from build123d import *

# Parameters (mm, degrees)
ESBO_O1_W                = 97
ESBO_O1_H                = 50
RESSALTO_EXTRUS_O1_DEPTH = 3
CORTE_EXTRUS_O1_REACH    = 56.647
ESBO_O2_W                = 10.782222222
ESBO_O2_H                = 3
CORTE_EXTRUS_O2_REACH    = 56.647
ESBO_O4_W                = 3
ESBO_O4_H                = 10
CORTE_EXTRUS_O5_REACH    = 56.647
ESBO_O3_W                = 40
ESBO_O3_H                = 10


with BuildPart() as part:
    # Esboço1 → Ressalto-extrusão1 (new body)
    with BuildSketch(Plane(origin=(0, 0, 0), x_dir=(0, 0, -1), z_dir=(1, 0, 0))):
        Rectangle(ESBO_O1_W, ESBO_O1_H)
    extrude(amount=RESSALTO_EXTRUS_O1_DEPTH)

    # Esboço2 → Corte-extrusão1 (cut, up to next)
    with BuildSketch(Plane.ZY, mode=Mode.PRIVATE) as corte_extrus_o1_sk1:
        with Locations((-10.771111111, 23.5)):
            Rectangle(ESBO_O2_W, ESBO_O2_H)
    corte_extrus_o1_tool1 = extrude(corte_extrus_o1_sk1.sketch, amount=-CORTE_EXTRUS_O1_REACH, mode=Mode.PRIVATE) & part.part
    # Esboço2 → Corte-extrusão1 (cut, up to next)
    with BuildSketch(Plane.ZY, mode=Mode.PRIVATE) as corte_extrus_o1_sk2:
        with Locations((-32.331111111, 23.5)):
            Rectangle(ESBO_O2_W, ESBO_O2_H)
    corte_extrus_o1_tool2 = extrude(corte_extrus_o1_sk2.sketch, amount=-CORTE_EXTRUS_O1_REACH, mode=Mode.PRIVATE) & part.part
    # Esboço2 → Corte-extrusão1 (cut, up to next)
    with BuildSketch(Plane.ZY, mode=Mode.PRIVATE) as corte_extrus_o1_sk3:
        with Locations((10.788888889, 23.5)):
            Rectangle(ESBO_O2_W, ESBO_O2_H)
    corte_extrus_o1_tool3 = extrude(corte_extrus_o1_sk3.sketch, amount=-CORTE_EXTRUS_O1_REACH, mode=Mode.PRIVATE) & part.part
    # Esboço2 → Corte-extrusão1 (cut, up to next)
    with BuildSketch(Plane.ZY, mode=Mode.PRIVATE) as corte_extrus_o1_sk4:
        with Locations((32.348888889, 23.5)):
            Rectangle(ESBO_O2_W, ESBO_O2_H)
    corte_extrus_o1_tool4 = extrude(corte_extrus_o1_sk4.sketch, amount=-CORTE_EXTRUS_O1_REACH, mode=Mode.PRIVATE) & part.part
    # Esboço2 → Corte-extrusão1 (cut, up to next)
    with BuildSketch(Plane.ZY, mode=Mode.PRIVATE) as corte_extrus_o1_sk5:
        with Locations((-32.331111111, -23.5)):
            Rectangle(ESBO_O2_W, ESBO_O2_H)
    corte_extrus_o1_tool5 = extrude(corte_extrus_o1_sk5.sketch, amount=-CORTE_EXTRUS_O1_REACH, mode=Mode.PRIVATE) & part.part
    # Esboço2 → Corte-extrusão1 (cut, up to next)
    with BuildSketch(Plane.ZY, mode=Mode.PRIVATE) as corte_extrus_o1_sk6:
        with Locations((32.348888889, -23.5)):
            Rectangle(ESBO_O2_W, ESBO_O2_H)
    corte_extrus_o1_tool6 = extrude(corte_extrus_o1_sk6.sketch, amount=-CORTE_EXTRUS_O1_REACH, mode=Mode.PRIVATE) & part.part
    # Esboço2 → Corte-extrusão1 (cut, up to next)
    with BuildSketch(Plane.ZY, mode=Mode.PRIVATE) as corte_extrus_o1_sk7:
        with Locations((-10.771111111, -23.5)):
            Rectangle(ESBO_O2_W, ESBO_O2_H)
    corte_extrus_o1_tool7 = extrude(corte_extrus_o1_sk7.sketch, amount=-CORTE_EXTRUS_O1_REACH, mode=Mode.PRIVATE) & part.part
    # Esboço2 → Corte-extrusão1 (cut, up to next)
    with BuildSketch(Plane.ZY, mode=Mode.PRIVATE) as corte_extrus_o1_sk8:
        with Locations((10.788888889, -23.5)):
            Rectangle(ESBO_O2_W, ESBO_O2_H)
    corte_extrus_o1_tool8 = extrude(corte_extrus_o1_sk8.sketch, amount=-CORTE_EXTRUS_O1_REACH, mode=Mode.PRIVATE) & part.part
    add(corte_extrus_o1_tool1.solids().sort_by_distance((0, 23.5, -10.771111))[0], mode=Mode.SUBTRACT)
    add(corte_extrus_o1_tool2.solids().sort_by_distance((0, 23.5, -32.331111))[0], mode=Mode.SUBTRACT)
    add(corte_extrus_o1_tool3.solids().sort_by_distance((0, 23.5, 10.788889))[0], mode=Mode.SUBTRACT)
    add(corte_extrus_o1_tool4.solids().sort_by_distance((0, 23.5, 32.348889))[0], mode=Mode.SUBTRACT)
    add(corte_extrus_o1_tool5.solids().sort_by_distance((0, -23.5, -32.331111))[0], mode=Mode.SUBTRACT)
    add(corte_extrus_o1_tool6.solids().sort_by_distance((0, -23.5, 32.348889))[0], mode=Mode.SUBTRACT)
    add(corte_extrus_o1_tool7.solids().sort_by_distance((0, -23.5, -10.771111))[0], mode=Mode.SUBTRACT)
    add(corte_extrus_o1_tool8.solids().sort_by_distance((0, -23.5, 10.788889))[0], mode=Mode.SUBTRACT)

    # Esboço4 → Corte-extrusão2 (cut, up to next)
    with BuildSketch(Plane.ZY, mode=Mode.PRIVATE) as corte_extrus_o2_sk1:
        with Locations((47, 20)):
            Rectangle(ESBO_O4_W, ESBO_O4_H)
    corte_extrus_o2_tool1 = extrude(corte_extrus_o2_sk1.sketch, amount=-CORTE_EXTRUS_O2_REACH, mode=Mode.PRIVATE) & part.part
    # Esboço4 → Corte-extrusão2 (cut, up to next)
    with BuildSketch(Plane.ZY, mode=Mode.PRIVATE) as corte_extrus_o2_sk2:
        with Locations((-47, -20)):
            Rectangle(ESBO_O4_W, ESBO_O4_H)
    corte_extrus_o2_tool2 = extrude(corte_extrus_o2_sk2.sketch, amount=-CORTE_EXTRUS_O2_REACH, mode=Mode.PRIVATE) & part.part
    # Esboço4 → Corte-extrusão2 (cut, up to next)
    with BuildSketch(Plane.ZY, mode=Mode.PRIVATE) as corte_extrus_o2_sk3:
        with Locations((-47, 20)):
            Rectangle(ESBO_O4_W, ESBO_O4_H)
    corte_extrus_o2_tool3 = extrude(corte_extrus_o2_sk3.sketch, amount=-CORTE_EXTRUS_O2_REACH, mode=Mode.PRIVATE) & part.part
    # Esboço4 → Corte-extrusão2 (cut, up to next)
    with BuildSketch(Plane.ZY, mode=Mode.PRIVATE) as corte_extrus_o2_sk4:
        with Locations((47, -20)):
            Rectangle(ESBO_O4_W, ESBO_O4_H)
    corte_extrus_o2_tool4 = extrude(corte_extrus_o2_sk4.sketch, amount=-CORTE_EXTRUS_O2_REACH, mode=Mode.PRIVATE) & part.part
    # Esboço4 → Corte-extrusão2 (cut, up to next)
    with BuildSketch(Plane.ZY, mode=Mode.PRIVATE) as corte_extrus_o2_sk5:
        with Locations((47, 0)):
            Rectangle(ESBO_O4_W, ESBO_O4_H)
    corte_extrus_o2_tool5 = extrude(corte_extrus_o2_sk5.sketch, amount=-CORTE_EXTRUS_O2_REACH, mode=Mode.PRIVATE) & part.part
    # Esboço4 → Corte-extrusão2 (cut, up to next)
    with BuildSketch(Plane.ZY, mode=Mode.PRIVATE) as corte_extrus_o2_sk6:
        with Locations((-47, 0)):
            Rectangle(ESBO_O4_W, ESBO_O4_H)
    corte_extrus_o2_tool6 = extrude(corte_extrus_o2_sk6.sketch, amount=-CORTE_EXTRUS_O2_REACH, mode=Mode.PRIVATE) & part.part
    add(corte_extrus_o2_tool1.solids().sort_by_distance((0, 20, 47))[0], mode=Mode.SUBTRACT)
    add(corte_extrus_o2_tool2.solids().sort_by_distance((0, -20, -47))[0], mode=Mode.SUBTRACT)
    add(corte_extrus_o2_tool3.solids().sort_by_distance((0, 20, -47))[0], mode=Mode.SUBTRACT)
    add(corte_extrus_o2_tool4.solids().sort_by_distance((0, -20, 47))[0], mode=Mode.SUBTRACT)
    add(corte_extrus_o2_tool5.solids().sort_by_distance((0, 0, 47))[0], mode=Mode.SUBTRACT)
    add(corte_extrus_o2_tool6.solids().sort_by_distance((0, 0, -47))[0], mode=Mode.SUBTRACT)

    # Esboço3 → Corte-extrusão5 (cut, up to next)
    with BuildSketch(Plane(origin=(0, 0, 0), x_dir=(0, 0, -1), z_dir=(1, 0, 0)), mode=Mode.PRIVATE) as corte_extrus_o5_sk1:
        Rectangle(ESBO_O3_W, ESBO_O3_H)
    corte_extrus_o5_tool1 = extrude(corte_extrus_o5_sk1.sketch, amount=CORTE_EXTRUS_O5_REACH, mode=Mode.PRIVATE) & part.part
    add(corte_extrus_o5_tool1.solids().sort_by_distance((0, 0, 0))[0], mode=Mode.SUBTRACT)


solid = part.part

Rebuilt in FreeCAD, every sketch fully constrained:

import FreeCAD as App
import Part
import Sketcher
from FreeCAD import Vector


def add_polygon(sketch, points):
    """Adds a closed chain of lines whose ends are joined by coincident constraints."""
    first, n = sketch.GeometryCount, len(points)
    for a, b in zip(points, points[1:] + points[:1]):
        sketch.addGeometry(Part.LineSegment(App.Vector(*a, 0), App.Vector(*b, 0)), False)
    for i in range(n):
        sketch.addConstraint(Sketcher.Constraint("Coincident", first + i, 2, first + (i + 1) % n, 1))

doc = App.newDocument("Part")
body = doc.addObject("PartDesign::Body", "Body")

# Sketch on YZ plane
sketch1 = doc.addObject("Sketcher::SketchObject", "Sketch")
body.addObject(sketch1)
sketch1.AttachmentSupport = (doc.YZ_Plane, [""])
sketch1.MapMode = "FlatFace"
add_polygon(sketch1, [(25, 48.5), (-25, 48.5), (-25, -48.5), (25, -48.5)])  # lines 0-3
sketch1.addConstraint(Sketcher.Constraint("Horizontal", 0))
sketch1.addConstraint(Sketcher.Constraint("Vertical", 1))
sketch1.addConstraint(Sketcher.Constraint("Horizontal", 2))
sketch1.addConstraint(Sketcher.Constraint("Vertical", 3))
sketch1.addConstraint(Sketcher.Constraint("Symmetric", 0, 2, 2, 2, -1, 1))
sketch1.addConstraint(Sketcher.Constraint("DistanceX", 0, 2, 0, 1, 50.0))
sketch1.addConstraint(Sketcher.Constraint("DistanceY", 1, 2, 1, 1, 97.0))
pad1 = doc.addObject("PartDesign::Pad", "Pad")
body.addObject(pad1)
pad1.Profile = sketch1
pad1.Length = 3

# Sketch on YZ plane
sketch2 = doc.addObject("Sketcher::SketchObject", "Sketch001")
body.addObject(sketch2)
sketch2.AttachmentSupport = (doc.YZ_Plane, [""])
sketch2.MapMode = "FlatFace"
add_polygon(sketch2, [(25, -16.162222), (22, -16.162222), (22, -5.38), (25, -5.38)])  # lines 0-3
sketch2.addConstraint(Sketcher.Constraint("Horizontal", 0))
sketch2.addConstraint(Sketcher.Constraint("Vertical", 1))
sketch2.addConstraint(Sketcher.Constraint("Horizontal", 2))
sketch2.addConstraint(Sketcher.Constraint("Vertical", 3))
sketch2.addConstraint(Sketcher.Constraint("DistanceX", 0, 2, 0, 1, 3.0))
sketch2.addConstraint(Sketcher.Constraint("DistanceX", -1, 1, 0, 2, 22.0))
sketch2.addConstraint(Sketcher.Constraint("DistanceY", 1, 2, -1, 1, 5.38))
sketch2.addConstraint(Sketcher.Constraint("DistanceY", 1, 1, 1, 2, 10.782222))
pocket1 = doc.addObject("PartDesign::Pocket", "Pocket")
body.addObject(pocket1)
pocket1.Profile = sketch2
pocket1.Type = "UpToFirst"
pocket1.Reversed = True

# Sketch on YZ plane
sketch3 = doc.addObject("Sketcher::SketchObject", "Sketch002")
body.addObject(sketch3)
sketch3.AttachmentSupport = (doc.YZ_Plane, [""])
sketch3.MapMode = "FlatFace"
add_polygon(sketch3, [(25, -37.722222), (22, -37.722222), (22, -26.94), (25, -26.94)])  # lines 0-3
sketch3.addConstraint(Sketcher.Constraint("Horizontal", 0))
sketch3.addConstraint(Sketcher.Constraint("Vertical", 1))
sketch3.addConstraint(Sketcher.Constraint("Horizontal", 2))
sketch3.addConstraint(Sketcher.Constraint("Vertical", 3))
sketch3.addConstraint(Sketcher.Constraint("DistanceX", 0, 2, 0, 1, 3.0))
sketch3.addConstraint(Sketcher.Constraint("DistanceX", -1, 1, 0, 2, 22.0))
sketch3.addConstraint(Sketcher.Constraint("DistanceY", 1, 2, -1, 1, 26.94))
sketch3.addConstraint(Sketcher.Constraint("DistanceY", 1, 1, 1, 2, 10.782222))
pocket2 = doc.addObject("PartDesign::Pocket", "Pocket001")
body.addObject(pocket2)
pocket2.Profile = sketch3
pocket2.Type = "UpToFirst"
pocket2.Reversed = True

# Sketch on YZ plane
sketch4 = doc.addObject("Sketcher::SketchObject", "Sketch003")
body.addObject(sketch4)
sketch4.AttachmentSupport = (doc.YZ_Plane, [""])
sketch4.MapMode = "FlatFace"
add_polygon(sketch4, [(25, 5.397778), (22, 5.397778), (22, 16.18), (25, 16.18)])  # lines 0-3
sketch4.addConstraint(Sketcher.Constraint("Horizontal", 0))
sketch4.addConstraint(Sketcher.Constraint("Vertical", 1))
sketch4.addConstraint(Sketcher.Constraint("Horizontal", 2))
sketch4.addConstraint(Sketcher.Constraint("Vertical", 3))
sketch4.addConstraint(Sketcher.Constraint("DistanceX", 0, 2, 0, 1, 3.0))
sketch4.addConstraint(Sketcher.Constraint("DistanceX", -1, 1, 0, 2, 22.0))
sketch4.addConstraint(Sketcher.Constraint("DistanceY", -1, 1, 1, 2, 16.18))
sketch4.addConstraint(Sketcher.Constraint("DistanceY", 1, 1, 1, 2, 10.782222))
pocket3 = doc.addObject("PartDesign::Pocket", "Pocket002")
body.addObject(pocket3)
pocket3.Profile = sketch4
pocket3.Type = "UpToFirst"
pocket3.Reversed = True

# Sketch on YZ plane
sketch5 = doc.addObject("Sketcher::SketchObject", "Sketch004")
body.addObject(sketch5)
sketch5.AttachmentSupport = (doc.YZ_Plane, [""])
sketch5.MapMode = "FlatFace"
add_polygon(sketch5, [(25, 26.957778), (22, 26.957778), (22, 37.74), (25, 37.74)])  # lines 0-3
sketch5.addConstraint(Sketcher.Constraint("Horizontal", 0))
sketch5.addConstraint(Sketcher.Constraint("Vertical", 1))
sketch5.addConstraint(Sketcher.Constraint("Horizontal", 2))
sketch5.addConstraint(Sketcher.Constraint("Vertical", 3))
sketch5.addConstraint(Sketcher.Constraint("DistanceX", 0, 2, 0, 1, 3.0))
sketch5.addConstraint(Sketcher.Constraint("DistanceX", -1, 1, 0, 2, 22.0))
sketch5.addConstraint(Sketcher.Constraint("DistanceY", -1, 1, 1, 2, 37.74))
sketch5.addConstraint(Sketcher.Constraint("DistanceY", 1, 1, 1, 2, 10.782222))
pocket4 = doc.addObject("PartDesign::Pocket", "Pocket003")
body.addObject(pocket4)
pocket4.Profile = sketch5
pocket4.Type = "UpToFirst"
pocket4.Reversed = True

# Sketch on YZ plane
sketch6 = doc.addObject("Sketcher::SketchObject", "Sketch005")
body.addObject(sketch6)
sketch6.AttachmentSupport = (doc.YZ_Plane, [""])
sketch6.MapMode = "FlatFace"
add_polygon(sketch6, [(-22, -37.722222), (-25, -37.722222), (-25, -26.94), (-22, -26.94)])  # lines 0-3
sketch6.addConstraint(Sketcher.Constraint("Horizontal", 0))
sketch6.addConstraint(Sketcher.Constraint("Vertical", 1))
sketch6.addConstraint(Sketcher.Constraint("Horizontal", 2))
sketch6.addConstraint(Sketcher.Constraint("Vertical", 3))
sketch6.addConstraint(Sketcher.Constraint("DistanceX", 0, 2, 0, 1, 3.0))
sketch6.addConstraint(Sketcher.Constraint("DistanceX", 0, 2, -1, 1, 25.0))
sketch6.addConstraint(Sketcher.Constraint("DistanceY", 1, 2, -1, 1, 26.94))
sketch6.addConstraint(Sketcher.Constraint("DistanceY", 1, 1, 1, 2, 10.782222))
pocket5 = doc.addObject("PartDesign::Pocket", "Pocket004")
body.addObject(pocket5)
pocket5.Profile = sketch6
pocket5.Type = "UpToFirst"
pocket5.Reversed = True

# Sketch on YZ plane
sketch7 = doc.addObject("Sketcher::SketchObject", "Sketch006")
body.addObject(sketch7)
sketch7.AttachmentSupport = (doc.YZ_Plane, [""])
sketch7.MapMode = "FlatFace"
add_polygon(sketch7, [(-22, 26.957778), (-25, 26.957778), (-25, 37.74), (-22, 37.74)])  # lines 0-3
sketch7.addConstraint(Sketcher.Constraint("Horizontal", 0))
sketch7.addConstraint(Sketcher.Constraint("Vertical", 1))
sketch7.addConstraint(Sketcher.Constraint("Horizontal", 2))
sketch7.addConstraint(Sketcher.Constraint("Vertical", 3))
sketch7.addConstraint(Sketcher.Constraint("DistanceX", 0, 2, 0, 1, 3.0))
sketch7.addConstraint(Sketcher.Constraint("DistanceX", 0, 2, -1, 1, 25.0))
sketch7.addConstraint(Sketcher.Constraint("DistanceY", -1, 1, 1, 2, 37.74))
sketch7.addConstraint(Sketcher.Constraint("DistanceY", 1, 1, 1, 2, 10.782222))
pocket6 = doc.addObject("PartDesign::Pocket", "Pocket005")
body.addObject(pocket6)
pocket6.Profile = sketch7
pocket6.Type = "UpToFirst"
pocket6.Reversed = True

# Sketch on YZ plane
sketch8 = doc.addObject("Sketcher::SketchObject", "Sketch007")
body.addObject(sketch8)
sketch8.AttachmentSupport = (doc.YZ_Plane, [""])
sketch8.MapMode = "FlatFace"
add_polygon(sketch8, [(-22, -16.162222), (-25, -16.162222), (-25, -5.38), (-22, -5.38)])  # lines 0-3
sketch8.addConstraint(Sketcher.Constraint("Horizontal", 0))
sketch8.addConstraint(Sketcher.Constraint("Vertical", 1))
sketch8.addConstraint(Sketcher.Constraint("Horizontal", 2))
sketch8.addConstraint(Sketcher.Constraint("Vertical", 3))
sketch8.addConstraint(Sketcher.Constraint("DistanceX", 0, 2, 0, 1, 3.0))
sketch8.addConstraint(Sketcher.Constraint("DistanceX", 0, 2, -1, 1, 25.0))
sketch8.addConstraint(Sketcher.Constraint("DistanceY", 1, 2, -1, 1, 5.38))
sketch8.addConstraint(Sketcher.Constraint("DistanceY", 1, 1, 1, 2, 10.782222))
pocket7 = doc.addObject("PartDesign::Pocket", "Pocket006")
body.addObject(pocket7)
pocket7.Profile = sketch8
pocket7.Type = "UpToFirst"
pocket7.Reversed = True

# Sketch on YZ plane
sketch9 = doc.addObject("Sketcher::SketchObject", "Sketch008")
body.addObject(sketch9)
sketch9.AttachmentSupport = (doc.YZ_Plane, [""])
sketch9.MapMode = "FlatFace"
add_polygon(sketch9, [(-22, 5.397778), (-25, 5.397778), (-25, 16.18), (-22, 16.18)])  # lines 0-3
sketch9.addConstraint(Sketcher.Constraint("Horizontal", 0))
sketch9.addConstraint(Sketcher.Constraint("Vertical", 1))
sketch9.addConstraint(Sketcher.Constraint("Horizontal", 2))
sketch9.addConstraint(Sketcher.Constraint("Vertical", 3))
sketch9.addConstraint(Sketcher.Constraint("DistanceX", 0, 2, 0, 1, 3.0))
sketch9.addConstraint(Sketcher.Constraint("DistanceX", 0, 2, -1, 1, 25.0))
sketch9.addConstraint(Sketcher.Constraint("DistanceY", -1, 1, 1, 2, 16.18))
sketch9.addConstraint(Sketcher.Constraint("DistanceY", 1, 1, 1, 2, 10.782222))
pocket8 = doc.addObject("PartDesign::Pocket", "Pocket007")
body.addObject(pocket8)
pocket8.Profile = sketch9
pocket8.Type = "UpToFirst"
pocket8.Reversed = True

# Sketch on YZ plane
sketch10 = doc.addObject("Sketcher::SketchObject", "Sketch009")
body.addObject(sketch10)
sketch10.AttachmentSupport = (doc.YZ_Plane, [""])
sketch10.MapMode = "FlatFace"
add_polygon(sketch10, [(25, 45.5), (15, 45.5), (15, 48.5), (25, 48.5)])  # lines 0-3
sketch10.addConstraint(Sketcher.Constraint("Horizontal", 0))
sketch10.addConstraint(Sketcher.Constraint("Vertical", 1))
sketch10.addConstraint(Sketcher.Constraint("Horizontal", 2))
sketch10.addConstraint(Sketcher.Constraint("Vertical", 3))
sketch10.addConstraint(Sketcher.Constraint("DistanceX", 0, 2, 0, 1, 10.0))
sketch10.addConstraint(Sketcher.Constraint("DistanceY", 1, 1, 1, 2, 3.0))
sketch10.addConstraint(Sketcher.Constraint("DistanceX", -1, 1, 0, 2, 15.0))
sketch10.addConstraint(Sketcher.Constraint("DistanceY", -1, 1, 0, 2, 45.5))
pocket9 = doc.addObject("PartDesign::Pocket", "Pocket008")
body.addObject(pocket9)
pocket9.Profile = sketch10
pocket9.Type = "UpToFirst"
pocket9.Reversed = True

# Sketch on YZ plane
sketch11 = doc.addObject("Sketcher::SketchObject", "Sketch010")
body.addObject(sketch11)
sketch11.AttachmentSupport = (doc.YZ_Plane, [""])
sketch11.MapMode = "FlatFace"
add_polygon(sketch11, [(-15, -48.5), (-25, -48.5), (-25, -45.5), (-15, -45.5)])  # lines 0-3
sketch11.addConstraint(Sketcher.Constraint("Horizontal", 0))
sketch11.addConstraint(Sketcher.Constraint("Vertical", 1))
sketch11.addConstraint(Sketcher.Constraint("Horizontal", 2))
sketch11.addConstraint(Sketcher.Constraint("Vertical", 3))
sketch11.addConstraint(Sketcher.Constraint("DistanceX", 0, 2, 0, 1, 10.0))
sketch11.addConstraint(Sketcher.Constraint("DistanceY", 1, 1, 1, 2, 3.0))
sketch11.addConstraint(Sketcher.Constraint("DistanceX", 0, 2, -1, 1, 25.0))
sketch11.addConstraint(Sketcher.Constraint("DistanceY", 0, 2, -1, 1, 48.5))
pocket10 = doc.addObject("PartDesign::Pocket", "Pocket009")
body.addObject(pocket10)
pocket10.Profile = sketch11
pocket10.Type = "UpToFirst"
pocket10.Reversed = True

# Sketch on YZ plane
sketch12 = doc.addObject("Sketcher::SketchObject", "Sketch011")
body.addObject(sketch12)
sketch12.AttachmentSupport = (doc.YZ_Plane, [""])
sketch12.MapMode = "FlatFace"
add_polygon(sketch12, [(25, -48.5), (15, -48.5), (15, -45.5), (25, -45.5)])  # lines 0-3
sketch12.addConstraint(Sketcher.Constraint("Horizontal", 0))
sketch12.addConstraint(Sketcher.Constraint("Vertical", 1))
sketch12.addConstraint(Sketcher.Constraint("Horizontal", 2))
sketch12.addConstraint(Sketcher.Constraint("Vertical", 3))
sketch12.addConstraint(Sketcher.Constraint("DistanceX", 0, 2, 0, 1, 10.0))
sketch12.addConstraint(Sketcher.Constraint("DistanceY", 1, 1, 1, 2, 3.0))
sketch12.addConstraint(Sketcher.Constraint("DistanceX", -1, 1, 0, 2, 15.0))
sketch12.addConstraint(Sketcher.Constraint("DistanceY", 0, 2, -1, 1, 48.5))
pocket11 = doc.addObject("PartDesign::Pocket", "Pocket010")
body.addObject(pocket11)
pocket11.Profile = sketch12
pocket11.Type = "UpToFirst"
pocket11.Reversed = True

# Sketch on YZ plane
sketch13 = doc.addObject("Sketcher::SketchObject", "Sketch012")
body.addObject(sketch13)
sketch13.AttachmentSupport = (doc.YZ_Plane, [""])
sketch13.MapMode = "FlatFace"
add_polygon(sketch13, [(-15, 45.5), (-25, 45.5), (-25, 48.5), (-15, 48.5)])  # lines 0-3
sketch13.addConstraint(Sketcher.Constraint("Horizontal", 0))
sketch13.addConstraint(Sketcher.Constraint("Vertical", 1))
sketch13.addConstraint(Sketcher.Constraint("Horizontal", 2))
sketch13.addConstraint(Sketcher.Constraint("Vertical", 3))
sketch13.addConstraint(Sketcher.Constraint("DistanceX", 0, 2, 0, 1, 10.0))
sketch13.addConstraint(Sketcher.Constraint("DistanceY", 1, 1, 1, 2, 3.0))
sketch13.addConstraint(Sketcher.Constraint("DistanceX", 0, 2, -1, 1, 25.0))
sketch13.addConstraint(Sketcher.Constraint("DistanceY", -1, 1, 0, 2, 45.5))
pocket12 = doc.addObject("PartDesign::Pocket", "Pocket011")
body.addObject(pocket12)
pocket12.Profile = sketch13
pocket12.Type = "UpToFirst"
pocket12.Reversed = True

# Sketch on YZ plane
sketch14 = doc.addObject("Sketcher::SketchObject", "Sketch013")
body.addObject(sketch14)
sketch14.AttachmentSupport = (doc.YZ_Plane, [""])
sketch14.MapMode = "FlatFace"
add_polygon(sketch14, [(5, 45.5), (-5, 45.5), (-5, 48.5), (5, 48.5)])  # lines 0-3
sketch14.addConstraint(Sketcher.Constraint("Horizontal", 0))
sketch14.addConstraint(Sketcher.Constraint("Vertical", 1))
sketch14.addConstraint(Sketcher.Constraint("Horizontal", 2))
sketch14.addConstraint(Sketcher.Constraint("Vertical", 3))
sketch14.addConstraint(Sketcher.Constraint("DistanceX", 0, 2, 0, 1, 10.0))
sketch14.addConstraint(Sketcher.Constraint("DistanceY", 1, 1, 1, 2, 3.0))
sketch14.addConstraint(Sketcher.Constraint("DistanceX", 0, 2, -1, 1, 5.0))
sketch14.addConstraint(Sketcher.Constraint("DistanceY", -1, 1, 0, 2, 45.5))
pocket13 = doc.addObject("PartDesign::Pocket", "Pocket012")
body.addObject(pocket13)
pocket13.Profile = sketch14
pocket13.Type = "UpToFirst"
pocket13.Reversed = True

# Sketch on YZ plane
sketch15 = doc.addObject("Sketcher::SketchObject", "Sketch014")
body.addObject(sketch15)
sketch15.AttachmentSupport = (doc.YZ_Plane, [""])
sketch15.MapMode = "FlatFace"
add_polygon(sketch15, [(5, -48.5), (-5, -48.5), (-5, -45.5), (5, -45.5)])  # lines 0-3
sketch15.addConstraint(Sketcher.Constraint("Horizontal", 0))
sketch15.addConstraint(Sketcher.Constraint("Vertical", 1))
sketch15.addConstraint(Sketcher.Constraint("Horizontal", 2))
sketch15.addConstraint(Sketcher.Constraint("Vertical", 3))
sketch15.addConstraint(Sketcher.Constraint("DistanceX", 0, 2, 0, 1, 10.0))
sketch15.addConstraint(Sketcher.Constraint("DistanceY", 1, 1, 1, 2, 3.0))
sketch15.addConstraint(Sketcher.Constraint("DistanceX", 0, 2, -1, 1, 5.0))
sketch15.addConstraint(Sketcher.Constraint("DistanceY", 0, 2, -1, 1, 48.5))
pocket14 = doc.addObject("PartDesign::Pocket", "Pocket013")
body.addObject(pocket14)
pocket14.Profile = sketch15
pocket14.Type = "UpToFirst"
pocket14.Reversed = True

# Sketch on YZ plane
sketch16 = doc.addObject("Sketcher::SketchObject", "Sketch015")
body.addObject(sketch16)
sketch16.AttachmentSupport = (doc.YZ_Plane, [""])
sketch16.MapMode = "FlatFace"
add_polygon(sketch16, [(5, 20), (-5, 20), (-5, -20), (5, -20)])  # lines 0-3
sketch16.addConstraint(Sketcher.Constraint("Horizontal", 0))
sketch16.addConstraint(Sketcher.Constraint("Vertical", 1))
sketch16.addConstraint(Sketcher.Constraint("Horizontal", 2))
sketch16.addConstraint(Sketcher.Constraint("Vertical", 3))
sketch16.addConstraint(Sketcher.Constraint("Symmetric", 0, 2, 2, 2, -1, 1))
sketch16.addConstraint(Sketcher.Constraint("DistanceX", 0, 2, 0, 1, 10.0))
sketch16.addConstraint(Sketcher.Constraint("DistanceY", 1, 2, 1, 1, 40.0))
pocket15 = doc.addObject("PartDesign::Pocket", "Pocket014")
body.addObject(pocket15)
pocket15.Profile = sketch16
pocket15.Type = "UpToFirst"
pocket15.Reversed = True

doc.recompute()
